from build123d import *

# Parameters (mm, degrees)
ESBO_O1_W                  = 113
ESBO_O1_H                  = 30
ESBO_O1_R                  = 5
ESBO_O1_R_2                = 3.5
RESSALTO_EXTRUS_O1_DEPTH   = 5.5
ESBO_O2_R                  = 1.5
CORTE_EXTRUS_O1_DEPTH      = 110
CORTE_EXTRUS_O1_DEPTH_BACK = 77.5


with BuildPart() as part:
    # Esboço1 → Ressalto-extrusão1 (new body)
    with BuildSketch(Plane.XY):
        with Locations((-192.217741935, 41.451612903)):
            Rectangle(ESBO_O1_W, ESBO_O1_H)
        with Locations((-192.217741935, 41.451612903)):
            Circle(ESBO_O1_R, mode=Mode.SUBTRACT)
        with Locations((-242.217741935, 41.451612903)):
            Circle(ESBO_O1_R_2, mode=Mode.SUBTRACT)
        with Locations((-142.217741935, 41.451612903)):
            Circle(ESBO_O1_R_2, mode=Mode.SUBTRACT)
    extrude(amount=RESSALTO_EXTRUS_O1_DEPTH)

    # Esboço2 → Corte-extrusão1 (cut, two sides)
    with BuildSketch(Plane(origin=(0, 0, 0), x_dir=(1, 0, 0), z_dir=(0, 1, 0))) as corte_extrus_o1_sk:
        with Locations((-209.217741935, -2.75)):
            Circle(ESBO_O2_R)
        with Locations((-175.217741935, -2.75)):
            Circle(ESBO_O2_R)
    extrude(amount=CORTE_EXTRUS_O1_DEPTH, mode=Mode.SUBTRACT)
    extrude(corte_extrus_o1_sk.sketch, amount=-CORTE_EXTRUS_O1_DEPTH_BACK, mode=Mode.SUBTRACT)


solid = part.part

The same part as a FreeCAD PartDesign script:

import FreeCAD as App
import Part
import Sketcher
Q = App.Units.Quantity

doc = App.newDocument("Part")
params = doc.addObject("Spreadsheet::Sheet", "Params")
for row, (alias, value) in enumerate([
    ("sketch1_diameter", "7 mm"),
    ("sketch1_diameter2", "10 mm"),
    ("sketch1_width", "113 mm"),
    ("sketch1_height", "30 mm"),
    ("pad1_length", "5.5 mm"),
    ("sketch2_diameter", "3 mm"),
], start=1):
    params.set(f"A{row}", alias)
    params.set(f"B{row}", "=" + value)
    params.setAlias(f"B{row}", alias)

body = doc.addObject("PartDesign::Body", "Body")

# Sketch on XY plane
sketch1 = body.newObject("Sketcher::SketchObject", "Sketch")
sketch1.AttachmentSupport = (doc.getObject("XY_Plane"), [""])
sketch1.MapMode = "FlatFace"
sketch1.addGeometry(Part.LineSegment(App.Vector(-248.7, 56.5, 0), App.Vector(-248.7, 26.5, 0)), False)
sketch1.addGeometry(Part.LineSegment(App.Vector(-248.7, 26.5, 0), App.Vector(-135.7, 26.5, 0)), False)
sketch1.addGeometry(Part.LineSegment(App.Vector(-135.7, 26.5, 0), App.Vector(-135.7, 56.5, 0)), False)
sketch1.addGeometry(Part.LineSegment(App.Vector(-135.7, 56.5, 0), App.Vector(-248.7, 56.5, 0)), False)
sketch1.addGeometry(Part.Circle(App.Vector(-242.2, 41.5, 0), App.Vector(0, 0, 1), 3.5), False)
sketch1.addGeometry(Part.Circle(App.Vector(-192.2, 41.5, 0), App.Vector(0, 0, 1), 5), False)
sketch1.addGeometry(Part.Circle(App.Vector(-142.2, 41.5, 0), App.Vector(0, 0, 1), 3.5), False)
sketch1.addConstraint(Sketcher.Constraint("Coincident", 0, 2, 1, 1))
sketch1.addConstraint(Sketcher.Constraint("Coincident", 1, 2, 2, 1))
sketch1.addConstraint(Sketcher.Constraint("Coincident", 2, 2, 3, 1))
sketch1.addConstraint(Sketcher.Constraint("Coincident", 3, 2, 0, 1))
sketch1.addConstraint(Sketcher.Constraint("Vertical", 0))
sketch1.addConstraint(Sketcher.Constraint("Horizontal", 1))
sketch1.addConstraint(Sketcher.Constraint("Vertical", 2))
sketch1.addConstraint(Sketcher.Constraint("Horizontal", 3))
sketch1.addConstraint(Sketcher.Constraint("Equal", 4, 6))
sketch1.addConstraint(Sketcher.Constraint("Horizontal", 4, 3, 5, 3))
sketch1.addConstraint(Sketcher.Constraint("Horizontal", 5, 3, 6, 3))
sketch1.addConstraint(Sketcher.Constraint("Diameter", 4, Q("7 mm")))
sketch1.addConstraint(Sketcher.Constraint("Diameter", 5, Q("10 mm")))
sketch1.addConstraint(Sketcher.Constraint("DistanceX", 1, 1, 1, 2, Q("113 mm")))
sketch1.addConstraint(Sketcher.Constraint("DistanceY", 0, 2, 0, 1, Q("30 mm")))
sketch1.addConstraint(Sketcher.Constraint("DistanceX", 4, 3, 5, 3, Q("50 mm")))
sketch1.addConstraint(Sketcher.Constraint("DistanceX", 5, 3, 6, 3, Q("50 mm")))
sketch1.addConstraint(Sketcher.Constraint("DistanceY", 0, 2, 4, 3, Q("15 mm")))
sketch1.addConstraint(Sketcher.Constraint("DistanceX", 0, 2, 4, 3, Q("6.5 mm")))
sketch1.addConstraint(Sketcher.Constraint("DistanceX", 4, 3, -1, 1, Q("242.217742 mm")))
sketch1.addConstraint(Sketcher.Constraint("DistanceY", -1, 1, 4, 3, Q("41.451613 mm")))
sketch1.setExpression("Constraints[11]", "Params.sketch1_diameter")
sketch1.setExpression("Constraints[12]", "Params.sketch1_diameter2")
sketch1.setExpression("Constraints[13]", "Params.sketch1_width")
sketch1.setExpression("Constraints[14]", "Params.sketch1_height")
pad1 = body.newObject("PartDesign::Pad", "Pad")
pad1.Profile = sketch1
pad1.setExpression("Length", "Params.pad1_length")

# Sketch on XZ plane
sketch2 = body.newObject("Sketcher::SketchObject", "Sketch001")
sketch2.AttachmentSupport = (doc.getObject("XZ_Plane"), [""])
sketch2.MapMode = "FlatFace"
sketch2.addGeometry(Part.Circle(App.Vector(-209.2, 2.8, 0), App.Vector(0, 0, 1), 1.5), False)
sketch2.addGeometry(Part.Circle(App.Vector(-175.2, 2.8, 0), App.Vector(0, 0, 1), 1.5), False)
sketch2.addConstraint(Sketcher.Constraint("Equal", 0, 1))
sketch2.addConstraint(Sketcher.Constraint("Horizontal", 0, 3, 1, 3))
sketch2.addConstraint(Sketcher.Constraint("Diameter", 0, Q("3 mm")))
sketch2.addConstraint(Sketcher.Constraint("DistanceX", 0, 3, 1, 3, Q("34 mm")))
sketch2.addConstraint(Sketcher.Constraint("DistanceY", -1, 1, 0, 3, Q("2.75 mm")))
sketch2.addConstraint(Sketcher.Constraint("DistanceX", 0, 3, -1, 1, Q("209.217742 mm")))
sketch2.setExpression("Constraints[2]", "Params.sketch2_diameter")
pocket1 = body.newObject("PartDesign::Pocket", "Pocket")
pocket1.Profile = sketch2
pocket1.Type = "ThroughAll"
pocket1.Midplane = True

doc.recompute()
